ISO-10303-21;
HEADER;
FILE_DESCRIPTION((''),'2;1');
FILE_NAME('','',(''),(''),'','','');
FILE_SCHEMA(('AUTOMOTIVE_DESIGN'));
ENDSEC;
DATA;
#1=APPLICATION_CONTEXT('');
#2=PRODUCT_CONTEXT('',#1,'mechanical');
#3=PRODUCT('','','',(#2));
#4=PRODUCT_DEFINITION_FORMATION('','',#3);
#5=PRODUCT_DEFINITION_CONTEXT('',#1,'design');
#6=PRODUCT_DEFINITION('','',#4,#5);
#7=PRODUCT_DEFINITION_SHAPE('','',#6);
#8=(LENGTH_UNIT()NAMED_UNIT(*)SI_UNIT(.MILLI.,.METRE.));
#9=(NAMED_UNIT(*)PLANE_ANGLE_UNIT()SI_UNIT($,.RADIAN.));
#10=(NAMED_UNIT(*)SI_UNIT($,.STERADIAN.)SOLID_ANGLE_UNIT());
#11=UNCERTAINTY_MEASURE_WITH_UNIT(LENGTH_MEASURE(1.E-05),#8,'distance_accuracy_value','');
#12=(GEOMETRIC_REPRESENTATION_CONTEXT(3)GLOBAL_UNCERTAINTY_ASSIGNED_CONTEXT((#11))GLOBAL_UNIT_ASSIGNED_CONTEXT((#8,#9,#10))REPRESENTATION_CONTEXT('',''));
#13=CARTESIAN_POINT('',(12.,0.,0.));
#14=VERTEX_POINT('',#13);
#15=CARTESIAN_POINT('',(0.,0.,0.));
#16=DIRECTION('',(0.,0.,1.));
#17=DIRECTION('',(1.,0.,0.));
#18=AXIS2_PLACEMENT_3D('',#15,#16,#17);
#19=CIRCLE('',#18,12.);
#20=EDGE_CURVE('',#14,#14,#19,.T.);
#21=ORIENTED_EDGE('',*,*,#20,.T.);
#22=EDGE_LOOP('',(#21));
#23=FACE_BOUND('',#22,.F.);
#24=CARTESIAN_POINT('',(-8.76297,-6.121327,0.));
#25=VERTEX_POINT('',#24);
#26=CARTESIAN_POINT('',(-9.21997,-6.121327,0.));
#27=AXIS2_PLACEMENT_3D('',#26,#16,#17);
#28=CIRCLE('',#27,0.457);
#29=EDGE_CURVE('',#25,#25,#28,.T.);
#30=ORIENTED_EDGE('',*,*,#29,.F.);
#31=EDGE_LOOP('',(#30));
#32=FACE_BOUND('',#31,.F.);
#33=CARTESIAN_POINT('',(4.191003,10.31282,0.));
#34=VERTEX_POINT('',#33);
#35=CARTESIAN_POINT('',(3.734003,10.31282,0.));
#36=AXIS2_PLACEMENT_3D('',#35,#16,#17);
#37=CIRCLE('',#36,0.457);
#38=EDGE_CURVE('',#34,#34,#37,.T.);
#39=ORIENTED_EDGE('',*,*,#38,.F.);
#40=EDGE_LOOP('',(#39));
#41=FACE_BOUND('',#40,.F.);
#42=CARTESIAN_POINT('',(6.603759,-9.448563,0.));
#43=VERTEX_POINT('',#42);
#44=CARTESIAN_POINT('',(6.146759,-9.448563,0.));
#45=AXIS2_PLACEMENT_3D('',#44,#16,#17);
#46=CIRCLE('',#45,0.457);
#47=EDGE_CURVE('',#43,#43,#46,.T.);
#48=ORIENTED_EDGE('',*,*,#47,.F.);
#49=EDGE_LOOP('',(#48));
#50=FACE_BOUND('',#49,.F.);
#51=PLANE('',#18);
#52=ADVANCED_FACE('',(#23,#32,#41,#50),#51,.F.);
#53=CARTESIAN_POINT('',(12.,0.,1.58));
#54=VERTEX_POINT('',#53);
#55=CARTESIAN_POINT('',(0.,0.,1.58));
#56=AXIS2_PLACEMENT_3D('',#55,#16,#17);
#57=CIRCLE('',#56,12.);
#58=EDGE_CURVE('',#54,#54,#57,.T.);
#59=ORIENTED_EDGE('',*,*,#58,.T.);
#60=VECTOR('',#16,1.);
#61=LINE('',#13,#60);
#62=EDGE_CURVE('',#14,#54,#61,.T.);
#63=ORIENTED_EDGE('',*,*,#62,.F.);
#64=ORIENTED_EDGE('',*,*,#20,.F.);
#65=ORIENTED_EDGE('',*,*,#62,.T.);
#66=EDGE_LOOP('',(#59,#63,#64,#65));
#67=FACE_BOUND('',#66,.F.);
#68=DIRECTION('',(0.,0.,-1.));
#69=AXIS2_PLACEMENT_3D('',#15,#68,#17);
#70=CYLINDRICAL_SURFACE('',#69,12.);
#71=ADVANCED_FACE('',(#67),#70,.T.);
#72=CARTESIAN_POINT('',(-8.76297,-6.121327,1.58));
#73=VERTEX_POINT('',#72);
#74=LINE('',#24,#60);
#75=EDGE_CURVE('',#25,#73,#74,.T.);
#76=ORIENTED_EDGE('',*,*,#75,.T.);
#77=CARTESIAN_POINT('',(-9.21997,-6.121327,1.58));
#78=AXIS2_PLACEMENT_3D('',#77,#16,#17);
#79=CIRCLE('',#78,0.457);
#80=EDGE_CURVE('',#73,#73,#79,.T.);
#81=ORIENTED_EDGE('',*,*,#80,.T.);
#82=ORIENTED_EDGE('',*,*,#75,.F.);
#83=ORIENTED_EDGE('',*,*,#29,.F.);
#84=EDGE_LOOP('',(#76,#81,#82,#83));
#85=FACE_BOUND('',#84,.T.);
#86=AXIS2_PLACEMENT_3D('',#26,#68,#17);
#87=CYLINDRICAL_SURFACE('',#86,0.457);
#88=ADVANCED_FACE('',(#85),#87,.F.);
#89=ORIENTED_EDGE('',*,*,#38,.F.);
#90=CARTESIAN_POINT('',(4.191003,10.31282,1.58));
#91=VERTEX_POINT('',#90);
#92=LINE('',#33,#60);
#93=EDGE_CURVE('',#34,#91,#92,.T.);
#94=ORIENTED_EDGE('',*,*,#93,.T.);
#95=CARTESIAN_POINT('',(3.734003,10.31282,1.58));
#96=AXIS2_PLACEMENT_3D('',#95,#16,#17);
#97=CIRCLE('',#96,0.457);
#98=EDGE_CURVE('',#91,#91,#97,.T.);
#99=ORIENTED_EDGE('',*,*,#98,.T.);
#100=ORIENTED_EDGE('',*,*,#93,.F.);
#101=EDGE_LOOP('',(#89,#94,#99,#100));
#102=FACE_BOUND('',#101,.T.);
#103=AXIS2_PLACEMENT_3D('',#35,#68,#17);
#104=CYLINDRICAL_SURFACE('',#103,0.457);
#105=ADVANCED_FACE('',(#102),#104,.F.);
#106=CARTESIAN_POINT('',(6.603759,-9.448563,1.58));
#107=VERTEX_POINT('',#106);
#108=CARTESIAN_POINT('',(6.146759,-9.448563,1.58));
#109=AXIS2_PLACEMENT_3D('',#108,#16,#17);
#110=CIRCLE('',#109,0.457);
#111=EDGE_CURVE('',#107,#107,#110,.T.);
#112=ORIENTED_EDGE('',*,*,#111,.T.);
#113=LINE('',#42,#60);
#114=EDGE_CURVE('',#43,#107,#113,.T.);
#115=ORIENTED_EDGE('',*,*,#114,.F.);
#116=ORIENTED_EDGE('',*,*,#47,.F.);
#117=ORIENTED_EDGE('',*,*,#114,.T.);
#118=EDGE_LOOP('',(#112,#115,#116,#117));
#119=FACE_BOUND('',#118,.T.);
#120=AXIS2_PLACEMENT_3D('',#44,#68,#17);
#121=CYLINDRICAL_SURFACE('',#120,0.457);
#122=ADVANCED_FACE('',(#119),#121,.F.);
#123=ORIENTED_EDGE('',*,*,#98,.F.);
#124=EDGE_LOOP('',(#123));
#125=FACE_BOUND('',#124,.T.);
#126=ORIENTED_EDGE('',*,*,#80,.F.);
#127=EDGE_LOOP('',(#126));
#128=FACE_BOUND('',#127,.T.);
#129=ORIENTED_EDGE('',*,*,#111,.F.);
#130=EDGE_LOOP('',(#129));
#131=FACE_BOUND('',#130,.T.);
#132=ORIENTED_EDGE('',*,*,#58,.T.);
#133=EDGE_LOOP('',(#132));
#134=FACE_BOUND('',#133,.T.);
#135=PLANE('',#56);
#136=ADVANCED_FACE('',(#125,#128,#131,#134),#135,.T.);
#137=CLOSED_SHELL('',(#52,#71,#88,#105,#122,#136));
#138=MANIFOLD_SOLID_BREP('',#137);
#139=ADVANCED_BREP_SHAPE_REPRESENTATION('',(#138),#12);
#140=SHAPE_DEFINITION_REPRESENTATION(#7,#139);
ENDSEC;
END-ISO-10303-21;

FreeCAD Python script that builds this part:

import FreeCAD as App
import Part
import Sketcher

V = App.Vector

doc = App.newDocument("Part")
body = doc.addObject("PartDesign::Body", "Body")

sketch1 = doc.addObject("Sketcher::SketchObject", "Sketch")
body.addObject(sketch1)
sketch1.AttachmentSupport = (doc.XY_Plane, [""])
sketch1.MapMode = "FlatFace"
sketch1.addGeometry(Part.Circle(V(0, 0, 0), V(0, 0, 1), 12), False)
sketch1.addGeometry(Part.Circle(V(-9.22, -6.12, 0), V(0, 0, 1), 0.46), False)
sketch1.addGeometry(Part.Circle(V(6.15, -9.45, 0), V(0, 0, 1), 0.46), False)
sketch1.addGeometry(Part.Circle(V(3.73, 10.31, 0), V(0, 0, 1), 0.46), False)
sketch1.addConstraint(Sketcher.Constraint("Coincident", 0, 3, -1, 1))
sketch1.addConstraint(Sketcher.Constraint("Equal", 1, 2))
sketch1.addConstraint(Sketcher.Constraint("Equal", 2, 3))
sketch1.addConstraint(Sketcher.Constraint("Diameter", 0, 24.0))
sketch1.addConstraint(Sketcher.Constraint("Diameter", 1, 0.914))
sketch1.addConstraint(Sketcher.Constraint("DistanceX", 1, 3, -1, 1, 9.21997))
sketch1.addConstraint(Sketcher.Constraint("DistanceX", -1, 1, 2, 3, 6.146759))
sketch1.addConstraint(Sketcher.Constraint("DistanceY", -1, 1, 3, 3, 10.31282))
sketch1.addConstraint(Sketcher.Constraint("DistanceY", 1, 3, -1, 1, 6.121327))
sketch1.addConstraint(Sketcher.Constraint("DistanceY", 2, 3, -1, 1, 9.448563))
sketch1.addConstraint(Sketcher.Constraint("DistanceX", -1, 1, 3, 3, 3.734003))
pad1 = doc.addObject("PartDesign::Pad", "Pad")
body.addObject(pad1)
pad1.Profile = sketch1
pad1.Length = 1.58

doc.recompute()
